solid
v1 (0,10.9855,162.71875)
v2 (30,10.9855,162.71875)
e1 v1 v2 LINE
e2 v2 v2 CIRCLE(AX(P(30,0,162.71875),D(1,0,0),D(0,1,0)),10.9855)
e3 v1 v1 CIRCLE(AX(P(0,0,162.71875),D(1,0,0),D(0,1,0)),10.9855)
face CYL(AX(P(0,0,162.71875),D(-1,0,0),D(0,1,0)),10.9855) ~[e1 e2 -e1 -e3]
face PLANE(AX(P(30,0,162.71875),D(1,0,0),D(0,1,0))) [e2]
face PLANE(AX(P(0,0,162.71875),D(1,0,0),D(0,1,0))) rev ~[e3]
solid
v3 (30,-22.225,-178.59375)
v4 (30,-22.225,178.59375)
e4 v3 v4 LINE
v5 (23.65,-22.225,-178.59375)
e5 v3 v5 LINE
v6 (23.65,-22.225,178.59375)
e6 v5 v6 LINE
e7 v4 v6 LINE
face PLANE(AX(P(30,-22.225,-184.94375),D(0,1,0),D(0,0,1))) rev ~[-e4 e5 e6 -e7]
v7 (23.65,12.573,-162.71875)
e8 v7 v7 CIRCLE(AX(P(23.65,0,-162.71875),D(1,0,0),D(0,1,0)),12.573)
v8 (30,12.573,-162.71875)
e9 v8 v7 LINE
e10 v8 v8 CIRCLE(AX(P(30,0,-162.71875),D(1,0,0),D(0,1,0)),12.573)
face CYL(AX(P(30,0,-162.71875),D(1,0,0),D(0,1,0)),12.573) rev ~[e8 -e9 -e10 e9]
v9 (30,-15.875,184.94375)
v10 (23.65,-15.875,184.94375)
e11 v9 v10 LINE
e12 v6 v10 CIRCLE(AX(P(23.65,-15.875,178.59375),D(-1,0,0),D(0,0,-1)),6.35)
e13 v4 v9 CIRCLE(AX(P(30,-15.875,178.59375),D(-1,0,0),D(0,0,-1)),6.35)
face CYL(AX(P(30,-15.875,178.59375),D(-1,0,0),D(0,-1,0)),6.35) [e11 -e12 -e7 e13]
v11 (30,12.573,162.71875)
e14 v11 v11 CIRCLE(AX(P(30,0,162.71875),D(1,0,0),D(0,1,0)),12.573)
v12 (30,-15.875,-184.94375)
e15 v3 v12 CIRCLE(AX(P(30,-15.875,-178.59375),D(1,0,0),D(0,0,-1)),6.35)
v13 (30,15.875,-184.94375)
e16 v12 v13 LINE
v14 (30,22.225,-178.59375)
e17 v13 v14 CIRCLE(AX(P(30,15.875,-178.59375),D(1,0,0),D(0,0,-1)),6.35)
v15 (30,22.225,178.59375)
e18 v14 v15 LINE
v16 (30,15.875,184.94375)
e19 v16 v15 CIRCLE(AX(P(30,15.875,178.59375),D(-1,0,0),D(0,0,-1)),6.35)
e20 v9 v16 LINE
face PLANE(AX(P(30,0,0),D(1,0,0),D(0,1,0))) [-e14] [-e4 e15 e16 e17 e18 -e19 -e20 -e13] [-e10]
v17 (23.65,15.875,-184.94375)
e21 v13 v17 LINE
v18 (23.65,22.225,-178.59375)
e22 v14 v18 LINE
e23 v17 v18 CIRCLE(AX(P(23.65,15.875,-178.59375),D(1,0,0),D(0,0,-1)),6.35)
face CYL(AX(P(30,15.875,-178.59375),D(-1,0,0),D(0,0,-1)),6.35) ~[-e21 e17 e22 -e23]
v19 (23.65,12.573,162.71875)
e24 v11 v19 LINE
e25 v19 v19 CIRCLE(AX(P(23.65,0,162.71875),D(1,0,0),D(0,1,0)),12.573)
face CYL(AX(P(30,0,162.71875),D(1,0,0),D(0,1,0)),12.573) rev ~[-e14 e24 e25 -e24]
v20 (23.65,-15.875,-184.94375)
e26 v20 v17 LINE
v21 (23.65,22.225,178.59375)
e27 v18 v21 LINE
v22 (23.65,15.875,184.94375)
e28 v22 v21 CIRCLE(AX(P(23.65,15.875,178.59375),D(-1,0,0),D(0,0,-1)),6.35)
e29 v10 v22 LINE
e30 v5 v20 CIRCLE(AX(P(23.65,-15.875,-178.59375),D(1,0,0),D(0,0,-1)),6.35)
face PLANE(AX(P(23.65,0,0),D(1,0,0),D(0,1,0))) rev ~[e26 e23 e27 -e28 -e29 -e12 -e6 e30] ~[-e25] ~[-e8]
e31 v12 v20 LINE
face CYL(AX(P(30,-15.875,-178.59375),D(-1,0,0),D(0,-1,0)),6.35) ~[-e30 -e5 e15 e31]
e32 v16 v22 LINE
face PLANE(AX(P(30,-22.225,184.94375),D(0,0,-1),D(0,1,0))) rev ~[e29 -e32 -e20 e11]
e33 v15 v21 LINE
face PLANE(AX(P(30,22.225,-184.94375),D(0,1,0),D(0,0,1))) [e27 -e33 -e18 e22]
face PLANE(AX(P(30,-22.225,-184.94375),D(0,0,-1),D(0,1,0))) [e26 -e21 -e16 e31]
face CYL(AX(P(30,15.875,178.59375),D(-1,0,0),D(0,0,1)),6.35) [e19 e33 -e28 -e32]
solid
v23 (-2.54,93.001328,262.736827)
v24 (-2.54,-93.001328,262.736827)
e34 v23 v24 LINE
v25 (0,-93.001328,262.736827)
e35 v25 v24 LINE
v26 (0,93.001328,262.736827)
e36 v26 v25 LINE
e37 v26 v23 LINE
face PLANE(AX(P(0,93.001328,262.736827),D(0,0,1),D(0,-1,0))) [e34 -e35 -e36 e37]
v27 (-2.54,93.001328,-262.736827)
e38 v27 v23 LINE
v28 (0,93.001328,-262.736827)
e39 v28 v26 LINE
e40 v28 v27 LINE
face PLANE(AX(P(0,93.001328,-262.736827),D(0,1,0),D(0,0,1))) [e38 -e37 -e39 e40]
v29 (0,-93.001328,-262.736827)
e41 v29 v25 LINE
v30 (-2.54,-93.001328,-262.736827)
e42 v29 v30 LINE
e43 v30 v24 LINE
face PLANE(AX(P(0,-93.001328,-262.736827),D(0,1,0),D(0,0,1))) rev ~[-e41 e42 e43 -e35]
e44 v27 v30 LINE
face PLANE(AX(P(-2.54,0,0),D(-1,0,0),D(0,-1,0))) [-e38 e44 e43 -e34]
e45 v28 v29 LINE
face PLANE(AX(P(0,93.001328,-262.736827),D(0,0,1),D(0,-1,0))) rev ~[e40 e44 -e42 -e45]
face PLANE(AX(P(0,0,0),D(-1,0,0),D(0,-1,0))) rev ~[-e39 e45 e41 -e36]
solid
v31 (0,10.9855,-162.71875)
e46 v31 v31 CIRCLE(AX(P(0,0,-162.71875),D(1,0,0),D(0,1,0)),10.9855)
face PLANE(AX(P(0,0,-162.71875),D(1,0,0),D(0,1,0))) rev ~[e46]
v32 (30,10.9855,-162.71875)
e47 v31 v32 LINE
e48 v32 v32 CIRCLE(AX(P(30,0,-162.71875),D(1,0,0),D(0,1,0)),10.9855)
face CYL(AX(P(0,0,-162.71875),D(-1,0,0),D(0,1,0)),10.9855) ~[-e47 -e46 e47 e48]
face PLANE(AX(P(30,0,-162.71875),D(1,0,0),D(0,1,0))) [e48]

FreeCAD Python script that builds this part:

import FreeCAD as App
import Part
import Sketcher

V = App.Vector
Q = App.Units.Quantity


def edges_at(feature, points):
    """Names of the edges that pass closest to the given points."""
    edges = feature.Shape.Edges
    near = lambda p: min(range(len(edges)), key=lambda i: edges[i].distToShape(Part.Vertex(*p))[0])
    return sorted({f"Edge{near(p) + 1}" for p in points})


def add_polygon(sketch, points):
    """Adds a closed chain of lines whose ends are joined by coincident constraints."""
    first, n = sketch.GeometryCount, len(points)
    for a, b in zip(points, points[1:] + points[:1]):
        sketch.addGeometry(Part.LineSegment(App.Vector(*a, 0), App.Vector(*b, 0)), False)
    for i in range(n):
        sketch.addConstraint(Sketcher.Constraint("Coincident", first + i, 2, first + (i + 1) % n, 1))

doc = App.newDocument("Part")
body = doc.addObject("PartDesign::Body", "Body")
body.AllowCompound = True

# Sketch on YZ plane
sketch1 = body.newObject("Sketcher::SketchObject", "Sketch")
sketch1.AttachmentSupport = (doc.getObject("YZ_Plane"), [""])
sketch1.MapMode = "FlatFace"
sketch1.addGeometry([
    Part.Circle(V(0, -163, 0), V(0, 0, 1), 11),
    Part.Circle(V(0, 163, 0), V(0, 0, 1), 11),
], False)
sketch1.addConstraint([
    Sketcher.Constraint("Equal", 0, 1),
    Sketcher.Constraint("Symmetric", 0, 3, 1, 3, -1, 1),
    Sketcher.Constraint("PointOnObject", 0, 3, -2),
    Sketcher.Constraint("Diameter", 0, Q("0.865 in")),
    Sketcher.Constraint("DistanceY", 0, 3, -1, 1, Q("6.40625 in")),
])
pad1 = body.newObject("PartDesign::Pad", "Pad")
pad1.Profile = sketch1
pad1.Length = 30
body2 = doc.addObject("PartDesign::Body", "Body001")

# Sketch on YZ plane
sketch2 = body2.newObject("Sketcher::SketchObject", "Sketch001")
sketch2.AttachmentSupport = (doc.getObject("YZ_Plane001"), [""])
sketch2.MapMode = "FlatFace"
add_polygon(sketch2, [(93, 263), (93, -263), (-93, -263), (-93, 263)])  # lines 0-3
sketch2.addConstraint([
    Sketcher.Constraint("Vertical", 0),
    Sketcher.Constraint("Horizontal", 1),
    Sketcher.Constraint("Vertical", 2),
    Sketcher.Constraint("Horizontal", 3),
    Sketcher.Constraint("Symmetric", 0, 2, 2, 2, -1, 1),
    Sketcher.Constraint("DistanceX", 1, 2, 1, 1, Q("186.002656 mm")),
    Sketcher.Constraint("DistanceY", 0, 2, 0, 1, Q("525.473654 mm")),
])
pad2 = body2.newObject("PartDesign::Pad", "Pad001")
pad2.Profile = sketch2
pad2.Length = Q("0.1 in")
pad2.Reversed = True
body3 = doc.addObject("PartDesign::Body", "Body002")

# Sketch on YZ plane
sketch3 = body3.newObject("Sketcher::SketchObject", "Sketch002")
sketch3.AttachmentSupport = (doc.getObject("YZ_Plane002"), [""])
sketch3.MapMode = "FlatFace"
sketch3.AttachmentOffset = App.Placement(V(0, 0, 30), App.Rotation())
add_polygon(sketch3, [(-22, 185), (-22, -185), (22, -185), (22, 185)])  # lines 0-3
sketch3.addGeometry(Part.Circle(V(0, -163, 0), V(0, 0, 1), 13), False)  # 4
sketch3.addGeometry(Part.Circle(V(0, 163, 0), V(0, 0, 1), 13), False)  # 5
sketch3.addConstraint([
    Sketcher.Constraint("Vertical", 0),
    Sketcher.Constraint("Horizontal", 1),
    Sketcher.Constraint("Vertical", 2),
    Sketcher.Constraint("Horizontal", 3),
    Sketcher.Constraint("Equal", 4, 5),
    Sketcher.Constraint("Symmetric", 4, 3, 5, 3, -1, 1),
    Sketcher.Constraint("Symmetric", 0, 2, 2, 2, -1, 1),
    Sketcher.Constraint("PointOnObject", 4, 3, -2),
    Sketcher.Constraint("Diameter", 4, Q("0.99 in")),
    Sketcher.Constraint("DistanceX", 1, 1, 1, 2, Q("1.75 in")),
    Sketcher.Constraint("DistanceY", 0, 2, 0, 1, Q("14.5625 in")),
    Sketcher.Constraint("DistanceY", 4, 3, -1, 1, Q("6.40625 in")),
])
pad3 = body3.newObject("PartDesign::Pad", "Pad002")
pad3.Profile = sketch3
pad3.Length = Q("0.25 in")
pad3.Reversed = True
doc.recompute()

fillet = body3.newObject("PartDesign::Fillet", "Fillet")
fillet.Base = (pad3, edges_at(pad3, [
    (26.825, -22.225, 184.944),
    (26.825, 22.225, 184.944),
    (26.825, 22.225, -184.944),
    (26.825, -22.225, -184.944),
]))
fillet.Radius = Q("0.25 in")

doc.recompute()
